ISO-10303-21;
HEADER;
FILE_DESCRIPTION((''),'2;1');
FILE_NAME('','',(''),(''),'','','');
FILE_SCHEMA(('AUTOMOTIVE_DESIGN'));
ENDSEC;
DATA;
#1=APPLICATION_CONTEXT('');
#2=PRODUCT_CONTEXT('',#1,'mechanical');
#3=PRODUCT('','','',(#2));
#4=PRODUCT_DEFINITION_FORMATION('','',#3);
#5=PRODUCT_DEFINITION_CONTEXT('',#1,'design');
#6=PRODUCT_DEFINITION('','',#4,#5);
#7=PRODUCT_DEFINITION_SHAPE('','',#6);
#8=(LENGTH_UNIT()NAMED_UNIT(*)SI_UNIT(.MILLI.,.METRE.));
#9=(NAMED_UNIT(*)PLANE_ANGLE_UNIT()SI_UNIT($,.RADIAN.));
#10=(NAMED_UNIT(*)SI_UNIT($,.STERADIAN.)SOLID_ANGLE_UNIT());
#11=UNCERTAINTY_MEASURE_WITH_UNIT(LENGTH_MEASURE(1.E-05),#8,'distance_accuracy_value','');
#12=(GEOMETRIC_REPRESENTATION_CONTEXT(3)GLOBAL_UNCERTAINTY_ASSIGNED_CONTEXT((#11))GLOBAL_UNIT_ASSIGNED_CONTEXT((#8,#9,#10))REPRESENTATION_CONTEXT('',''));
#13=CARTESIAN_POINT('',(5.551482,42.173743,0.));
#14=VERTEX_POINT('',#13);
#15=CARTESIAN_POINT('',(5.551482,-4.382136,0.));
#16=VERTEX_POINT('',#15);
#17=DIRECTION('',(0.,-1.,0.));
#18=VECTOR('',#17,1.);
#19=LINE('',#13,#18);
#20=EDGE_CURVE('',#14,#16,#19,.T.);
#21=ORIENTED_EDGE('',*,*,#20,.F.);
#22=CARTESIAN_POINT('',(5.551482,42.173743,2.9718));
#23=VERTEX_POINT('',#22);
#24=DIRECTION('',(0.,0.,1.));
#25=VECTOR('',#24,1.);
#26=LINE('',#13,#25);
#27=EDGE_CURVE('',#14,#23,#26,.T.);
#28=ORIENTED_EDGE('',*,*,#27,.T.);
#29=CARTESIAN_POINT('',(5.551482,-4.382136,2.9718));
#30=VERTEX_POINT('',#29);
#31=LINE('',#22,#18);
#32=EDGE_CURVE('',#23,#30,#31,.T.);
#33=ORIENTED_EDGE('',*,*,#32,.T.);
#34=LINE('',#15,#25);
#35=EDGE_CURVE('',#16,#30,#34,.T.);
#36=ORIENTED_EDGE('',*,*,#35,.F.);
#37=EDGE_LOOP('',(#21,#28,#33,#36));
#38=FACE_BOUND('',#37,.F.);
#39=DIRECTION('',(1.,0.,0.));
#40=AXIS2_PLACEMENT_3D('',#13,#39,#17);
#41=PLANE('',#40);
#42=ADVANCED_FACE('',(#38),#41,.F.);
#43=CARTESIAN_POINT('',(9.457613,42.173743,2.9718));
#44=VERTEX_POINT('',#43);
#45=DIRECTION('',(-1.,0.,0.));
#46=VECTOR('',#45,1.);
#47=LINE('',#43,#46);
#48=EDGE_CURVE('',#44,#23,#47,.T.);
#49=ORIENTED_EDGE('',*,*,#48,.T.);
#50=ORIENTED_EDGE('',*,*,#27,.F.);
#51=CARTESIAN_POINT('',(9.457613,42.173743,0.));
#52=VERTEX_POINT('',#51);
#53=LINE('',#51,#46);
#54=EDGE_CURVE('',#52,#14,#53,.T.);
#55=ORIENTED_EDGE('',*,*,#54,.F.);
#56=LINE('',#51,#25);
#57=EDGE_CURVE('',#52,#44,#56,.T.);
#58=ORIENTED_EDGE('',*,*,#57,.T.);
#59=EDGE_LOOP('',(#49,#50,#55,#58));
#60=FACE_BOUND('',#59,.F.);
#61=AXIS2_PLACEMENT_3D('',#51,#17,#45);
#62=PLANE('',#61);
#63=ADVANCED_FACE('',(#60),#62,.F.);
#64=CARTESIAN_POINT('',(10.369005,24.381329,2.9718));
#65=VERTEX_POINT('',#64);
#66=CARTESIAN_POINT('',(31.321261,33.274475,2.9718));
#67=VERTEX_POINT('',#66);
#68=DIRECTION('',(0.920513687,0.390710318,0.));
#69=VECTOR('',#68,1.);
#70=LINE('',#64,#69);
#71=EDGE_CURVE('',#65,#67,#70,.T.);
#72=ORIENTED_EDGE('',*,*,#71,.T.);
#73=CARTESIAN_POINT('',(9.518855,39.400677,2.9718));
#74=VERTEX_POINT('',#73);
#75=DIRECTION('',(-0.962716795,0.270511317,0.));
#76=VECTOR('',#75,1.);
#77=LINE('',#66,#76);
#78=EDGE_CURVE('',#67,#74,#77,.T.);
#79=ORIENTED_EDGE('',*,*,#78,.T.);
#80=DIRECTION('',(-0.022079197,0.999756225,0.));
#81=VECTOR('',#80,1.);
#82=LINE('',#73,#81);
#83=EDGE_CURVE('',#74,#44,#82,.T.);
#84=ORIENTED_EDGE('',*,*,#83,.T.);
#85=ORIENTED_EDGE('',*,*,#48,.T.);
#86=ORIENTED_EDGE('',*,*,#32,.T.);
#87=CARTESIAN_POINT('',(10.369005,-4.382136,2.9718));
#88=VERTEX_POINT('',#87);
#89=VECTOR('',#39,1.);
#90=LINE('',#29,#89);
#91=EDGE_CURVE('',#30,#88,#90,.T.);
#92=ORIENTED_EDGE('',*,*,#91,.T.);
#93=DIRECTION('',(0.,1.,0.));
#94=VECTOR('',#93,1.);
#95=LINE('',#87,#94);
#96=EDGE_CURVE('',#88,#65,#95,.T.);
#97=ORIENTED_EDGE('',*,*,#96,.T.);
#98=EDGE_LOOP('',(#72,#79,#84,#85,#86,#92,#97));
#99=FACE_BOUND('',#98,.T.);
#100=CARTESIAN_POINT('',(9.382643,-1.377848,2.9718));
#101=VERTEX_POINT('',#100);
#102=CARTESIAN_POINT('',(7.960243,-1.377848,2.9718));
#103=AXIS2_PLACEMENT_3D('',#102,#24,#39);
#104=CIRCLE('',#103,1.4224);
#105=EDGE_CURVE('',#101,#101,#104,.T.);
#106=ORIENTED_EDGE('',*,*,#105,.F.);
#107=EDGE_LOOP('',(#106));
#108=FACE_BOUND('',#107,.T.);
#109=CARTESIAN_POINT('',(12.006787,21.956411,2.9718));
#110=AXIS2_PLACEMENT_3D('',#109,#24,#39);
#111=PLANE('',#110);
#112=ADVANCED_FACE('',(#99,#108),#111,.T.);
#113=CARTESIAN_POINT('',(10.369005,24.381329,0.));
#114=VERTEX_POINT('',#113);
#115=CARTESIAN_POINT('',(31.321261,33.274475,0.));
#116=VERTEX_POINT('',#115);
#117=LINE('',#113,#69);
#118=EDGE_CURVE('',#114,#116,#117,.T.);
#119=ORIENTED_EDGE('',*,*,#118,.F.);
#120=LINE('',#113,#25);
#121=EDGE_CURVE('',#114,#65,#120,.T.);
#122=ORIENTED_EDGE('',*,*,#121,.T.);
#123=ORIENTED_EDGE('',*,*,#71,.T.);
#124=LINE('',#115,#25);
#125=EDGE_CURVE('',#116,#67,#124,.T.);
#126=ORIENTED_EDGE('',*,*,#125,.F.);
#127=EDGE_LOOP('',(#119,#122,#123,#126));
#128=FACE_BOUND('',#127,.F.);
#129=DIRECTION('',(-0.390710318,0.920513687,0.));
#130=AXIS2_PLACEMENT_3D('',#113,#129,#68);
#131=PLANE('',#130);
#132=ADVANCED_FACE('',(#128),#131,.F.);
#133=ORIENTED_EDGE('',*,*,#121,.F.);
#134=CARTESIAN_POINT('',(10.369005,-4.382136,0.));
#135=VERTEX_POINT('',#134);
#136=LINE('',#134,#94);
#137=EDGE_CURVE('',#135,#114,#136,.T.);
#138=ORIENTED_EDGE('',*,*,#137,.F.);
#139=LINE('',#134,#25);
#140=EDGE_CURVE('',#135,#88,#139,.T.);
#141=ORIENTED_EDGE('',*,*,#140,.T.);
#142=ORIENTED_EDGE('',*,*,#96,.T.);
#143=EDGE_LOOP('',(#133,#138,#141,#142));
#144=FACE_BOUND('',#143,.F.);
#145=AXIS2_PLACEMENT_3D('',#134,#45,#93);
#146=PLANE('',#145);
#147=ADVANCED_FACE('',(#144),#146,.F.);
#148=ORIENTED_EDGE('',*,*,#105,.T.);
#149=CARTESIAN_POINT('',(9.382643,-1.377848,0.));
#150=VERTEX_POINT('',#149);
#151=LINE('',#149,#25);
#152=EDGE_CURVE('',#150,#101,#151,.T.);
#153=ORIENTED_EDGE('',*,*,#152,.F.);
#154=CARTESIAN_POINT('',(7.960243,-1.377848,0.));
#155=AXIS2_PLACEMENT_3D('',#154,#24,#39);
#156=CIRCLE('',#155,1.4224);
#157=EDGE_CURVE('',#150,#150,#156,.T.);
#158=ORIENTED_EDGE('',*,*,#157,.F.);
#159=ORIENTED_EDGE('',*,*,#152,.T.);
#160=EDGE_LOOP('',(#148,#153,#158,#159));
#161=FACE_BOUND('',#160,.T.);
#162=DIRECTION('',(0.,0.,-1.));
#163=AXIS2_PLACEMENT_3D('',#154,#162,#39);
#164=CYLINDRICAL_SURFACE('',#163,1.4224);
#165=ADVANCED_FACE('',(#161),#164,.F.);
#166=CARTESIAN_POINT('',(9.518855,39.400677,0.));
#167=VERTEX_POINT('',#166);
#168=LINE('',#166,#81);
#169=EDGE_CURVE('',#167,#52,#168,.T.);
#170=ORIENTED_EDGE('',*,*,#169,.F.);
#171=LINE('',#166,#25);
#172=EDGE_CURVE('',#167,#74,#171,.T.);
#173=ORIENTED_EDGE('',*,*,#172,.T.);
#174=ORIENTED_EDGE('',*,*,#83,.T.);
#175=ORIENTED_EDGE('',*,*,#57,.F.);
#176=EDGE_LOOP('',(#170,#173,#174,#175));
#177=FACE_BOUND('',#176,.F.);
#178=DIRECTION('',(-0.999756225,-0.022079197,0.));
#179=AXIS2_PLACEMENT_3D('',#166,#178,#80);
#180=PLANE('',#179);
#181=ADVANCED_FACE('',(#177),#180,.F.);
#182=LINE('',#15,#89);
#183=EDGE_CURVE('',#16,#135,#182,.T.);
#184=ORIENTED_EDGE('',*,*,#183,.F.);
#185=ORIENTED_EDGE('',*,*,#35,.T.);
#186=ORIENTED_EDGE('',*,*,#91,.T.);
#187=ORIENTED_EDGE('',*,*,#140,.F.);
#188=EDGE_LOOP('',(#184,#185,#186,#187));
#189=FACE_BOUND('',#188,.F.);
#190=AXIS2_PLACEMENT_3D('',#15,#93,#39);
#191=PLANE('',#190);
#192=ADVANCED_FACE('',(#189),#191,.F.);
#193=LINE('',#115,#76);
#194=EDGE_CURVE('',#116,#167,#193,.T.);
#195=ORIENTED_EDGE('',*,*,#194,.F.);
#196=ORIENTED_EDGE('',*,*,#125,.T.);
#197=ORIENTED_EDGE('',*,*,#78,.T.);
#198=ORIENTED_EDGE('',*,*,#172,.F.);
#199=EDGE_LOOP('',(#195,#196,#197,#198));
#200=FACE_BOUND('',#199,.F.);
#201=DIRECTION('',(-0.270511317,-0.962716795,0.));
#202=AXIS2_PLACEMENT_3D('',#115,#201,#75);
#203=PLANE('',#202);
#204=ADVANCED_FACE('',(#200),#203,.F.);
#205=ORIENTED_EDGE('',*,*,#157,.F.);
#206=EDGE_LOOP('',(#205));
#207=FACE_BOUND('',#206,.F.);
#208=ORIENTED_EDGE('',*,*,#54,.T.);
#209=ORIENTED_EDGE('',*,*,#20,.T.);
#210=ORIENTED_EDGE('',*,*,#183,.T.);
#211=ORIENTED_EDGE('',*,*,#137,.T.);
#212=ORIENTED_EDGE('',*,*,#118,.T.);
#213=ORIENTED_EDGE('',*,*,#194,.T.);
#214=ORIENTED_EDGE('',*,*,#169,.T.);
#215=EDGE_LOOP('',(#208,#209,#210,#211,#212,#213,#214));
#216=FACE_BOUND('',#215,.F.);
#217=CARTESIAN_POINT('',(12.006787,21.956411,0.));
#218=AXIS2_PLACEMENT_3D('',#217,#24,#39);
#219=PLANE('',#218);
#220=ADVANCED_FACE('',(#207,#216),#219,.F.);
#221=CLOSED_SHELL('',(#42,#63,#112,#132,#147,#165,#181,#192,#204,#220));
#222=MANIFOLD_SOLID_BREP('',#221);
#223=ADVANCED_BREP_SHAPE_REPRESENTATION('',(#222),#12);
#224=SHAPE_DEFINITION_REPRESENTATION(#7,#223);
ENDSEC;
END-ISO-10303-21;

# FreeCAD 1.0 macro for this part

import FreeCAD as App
import Part
import Sketcher
from FreeCAD import Vector
Q = App.Units.Quantity

doc = App.newDocument("Part")
params = doc.addObject("Spreadsheet::Sheet", "Params")
for row, (alias, value) in enumerate([
    ("sketch1_diameter", "0.112 in"),
    ("pad1_length", "0.117 in"),
], start=1):
    params.set(f"A{row}", alias)
    params.set(f"B{row}", "=" + value)
    params.setAlias(f"B{row}", alias)

body = doc.addObject("PartDesign::Body", "Body")

# Sketch on XY plane
sketch1 = doc.addObject("Sketcher::SketchObject", "Sketch")
body.addObject(sketch1)
sketch1.AttachmentSupport = (doc.XY_Plane, [""])
sketch1.MapMode = "FlatFace"
sketch1.addGeometry(Part.LineSegment(Vector(5.6, -4.4, 0), Vector(10.4, -4.4, 0)), False)
sketch1.addGeometry(Part.LineSegment(Vector(10.4, -4.4, 0), Vector(10.4, 24.4, 0)), False)
sketch1.addGeometry(Part.LineSegment(Vector(10.4, 24.4, 0), Vector(31.3, 33.3, 0)), False)
sketch1.addGeometry(Part.LineSegment(Vector(31.3, 33.3, 0), Vector(9.5, 39.4, 0)), False)
sketch1.addGeometry(Part.LineSegment(Vector(9.5, 39.4, 0), Vector(9.5, 42.2, 0)), False)
sketch1.addGeometry(Part.LineSegment(Vector(9.5, 42.2, 0), Vector(5.6, 42.2, 0)), False)
sketch1.addGeometry(Part.LineSegment(Vector(5.6, 42.2, 0), Vector(5.6, -4.4, 0)), False)
sketch1.addGeometry(Part.Circle(Vector(8, -1.4, 0), Vector(0, 0, 1), 1.4), False)
sketch1.addConstraint(Sketcher.Constraint("Coincident", 0, 2, 1, 1))
sketch1.addConstraint(Sketcher.Constraint("Coincident", 1, 2, 2, 1))
sketch1.addConstraint(Sketcher.Constraint("Coincident", 2, 2, 3, 1))
sketch1.addConstraint(Sketcher.Constraint("Coincident", 3, 2, 4, 1))
sketch1.addConstraint(Sketcher.Constraint("Coincident", 4, 2, 5, 1))
sketch1.addConstraint(Sketcher.Constraint("Coincident", 5, 2, 6, 1))
sketch1.addConstraint(Sketcher.Constraint("Coincident", 6, 2, 0, 1))
sketch1.addConstraint(Sketcher.Constraint("Horizontal", 0))
sketch1.addConstraint(Sketcher.Constraint("Vertical", 1))
sketch1.addConstraint(Sketcher.Constraint("Horizontal", 5))
sketch1.addConstraint(Sketcher.Constraint("Vertical", 6))
sketch1.addConstraint(Sketcher.Constraint("Diameter", 7, Q("0.112 in")))
sketch1.addConstraint(Sketcher.Constraint("DistanceX", 5, 2, 5, 1, Q("3.906131 mm")))
sketch1.addConstraint(Sketcher.Constraint("DistanceY", 6, 2, 6, 1, Q("46.555879 mm")))
sketch1.addConstraint(Sketcher.Constraint("DistanceY", 2, 2, 3, 2, Q("6.126202 mm")))
sketch1.addConstraint(Sketcher.Constraint("Distance", 3, Q("22.646749 mm")))
sketch1.addConstraint(Sketcher.Constraint("DistanceX", 0, 1, 0, 2, Q("4.817523 mm")))
sketch1.addConstraint(Sketcher.Constraint("DistanceY", 1, 1, 1, 2, Q("28.763465 mm")))
sketch1.addConstraint(Sketcher.Constraint("DistanceY", -1, 1, 1, 2, Q("24.381329 mm")))
sketch1.addConstraint(Sketcher.Constraint("DistanceX", -1, 1, 2, 2, Q("31.321261 mm")))
sketch1.addConstraint(Sketcher.Constraint("DistanceX", 7, 3, 0, 2, Q("2.408762 mm")))
sketch1.addConstraint(Sketcher.Constraint("DistanceX", 7, 3, 2, 2, Q("23.361018 mm")))
sketch1.addConstraint(Sketcher.Constraint("DistanceY", 0, 2, 2, 2, Q("37.656611 mm")))
sketch1.addConstraint(Sketcher.Constraint("DistanceY", 7, 3, 4, 2, Q("43.551591 mm")))
sketch1.setExpression("Constraints[11]", "Params.sketch1_diameter")
pad1 = doc.addObject("PartDesign::Pad", "Pad")
body.addObject(pad1)
pad1.Profile = sketch1
pad1.setExpression("Length", "Params.pad1_length")

doc.recompute()
